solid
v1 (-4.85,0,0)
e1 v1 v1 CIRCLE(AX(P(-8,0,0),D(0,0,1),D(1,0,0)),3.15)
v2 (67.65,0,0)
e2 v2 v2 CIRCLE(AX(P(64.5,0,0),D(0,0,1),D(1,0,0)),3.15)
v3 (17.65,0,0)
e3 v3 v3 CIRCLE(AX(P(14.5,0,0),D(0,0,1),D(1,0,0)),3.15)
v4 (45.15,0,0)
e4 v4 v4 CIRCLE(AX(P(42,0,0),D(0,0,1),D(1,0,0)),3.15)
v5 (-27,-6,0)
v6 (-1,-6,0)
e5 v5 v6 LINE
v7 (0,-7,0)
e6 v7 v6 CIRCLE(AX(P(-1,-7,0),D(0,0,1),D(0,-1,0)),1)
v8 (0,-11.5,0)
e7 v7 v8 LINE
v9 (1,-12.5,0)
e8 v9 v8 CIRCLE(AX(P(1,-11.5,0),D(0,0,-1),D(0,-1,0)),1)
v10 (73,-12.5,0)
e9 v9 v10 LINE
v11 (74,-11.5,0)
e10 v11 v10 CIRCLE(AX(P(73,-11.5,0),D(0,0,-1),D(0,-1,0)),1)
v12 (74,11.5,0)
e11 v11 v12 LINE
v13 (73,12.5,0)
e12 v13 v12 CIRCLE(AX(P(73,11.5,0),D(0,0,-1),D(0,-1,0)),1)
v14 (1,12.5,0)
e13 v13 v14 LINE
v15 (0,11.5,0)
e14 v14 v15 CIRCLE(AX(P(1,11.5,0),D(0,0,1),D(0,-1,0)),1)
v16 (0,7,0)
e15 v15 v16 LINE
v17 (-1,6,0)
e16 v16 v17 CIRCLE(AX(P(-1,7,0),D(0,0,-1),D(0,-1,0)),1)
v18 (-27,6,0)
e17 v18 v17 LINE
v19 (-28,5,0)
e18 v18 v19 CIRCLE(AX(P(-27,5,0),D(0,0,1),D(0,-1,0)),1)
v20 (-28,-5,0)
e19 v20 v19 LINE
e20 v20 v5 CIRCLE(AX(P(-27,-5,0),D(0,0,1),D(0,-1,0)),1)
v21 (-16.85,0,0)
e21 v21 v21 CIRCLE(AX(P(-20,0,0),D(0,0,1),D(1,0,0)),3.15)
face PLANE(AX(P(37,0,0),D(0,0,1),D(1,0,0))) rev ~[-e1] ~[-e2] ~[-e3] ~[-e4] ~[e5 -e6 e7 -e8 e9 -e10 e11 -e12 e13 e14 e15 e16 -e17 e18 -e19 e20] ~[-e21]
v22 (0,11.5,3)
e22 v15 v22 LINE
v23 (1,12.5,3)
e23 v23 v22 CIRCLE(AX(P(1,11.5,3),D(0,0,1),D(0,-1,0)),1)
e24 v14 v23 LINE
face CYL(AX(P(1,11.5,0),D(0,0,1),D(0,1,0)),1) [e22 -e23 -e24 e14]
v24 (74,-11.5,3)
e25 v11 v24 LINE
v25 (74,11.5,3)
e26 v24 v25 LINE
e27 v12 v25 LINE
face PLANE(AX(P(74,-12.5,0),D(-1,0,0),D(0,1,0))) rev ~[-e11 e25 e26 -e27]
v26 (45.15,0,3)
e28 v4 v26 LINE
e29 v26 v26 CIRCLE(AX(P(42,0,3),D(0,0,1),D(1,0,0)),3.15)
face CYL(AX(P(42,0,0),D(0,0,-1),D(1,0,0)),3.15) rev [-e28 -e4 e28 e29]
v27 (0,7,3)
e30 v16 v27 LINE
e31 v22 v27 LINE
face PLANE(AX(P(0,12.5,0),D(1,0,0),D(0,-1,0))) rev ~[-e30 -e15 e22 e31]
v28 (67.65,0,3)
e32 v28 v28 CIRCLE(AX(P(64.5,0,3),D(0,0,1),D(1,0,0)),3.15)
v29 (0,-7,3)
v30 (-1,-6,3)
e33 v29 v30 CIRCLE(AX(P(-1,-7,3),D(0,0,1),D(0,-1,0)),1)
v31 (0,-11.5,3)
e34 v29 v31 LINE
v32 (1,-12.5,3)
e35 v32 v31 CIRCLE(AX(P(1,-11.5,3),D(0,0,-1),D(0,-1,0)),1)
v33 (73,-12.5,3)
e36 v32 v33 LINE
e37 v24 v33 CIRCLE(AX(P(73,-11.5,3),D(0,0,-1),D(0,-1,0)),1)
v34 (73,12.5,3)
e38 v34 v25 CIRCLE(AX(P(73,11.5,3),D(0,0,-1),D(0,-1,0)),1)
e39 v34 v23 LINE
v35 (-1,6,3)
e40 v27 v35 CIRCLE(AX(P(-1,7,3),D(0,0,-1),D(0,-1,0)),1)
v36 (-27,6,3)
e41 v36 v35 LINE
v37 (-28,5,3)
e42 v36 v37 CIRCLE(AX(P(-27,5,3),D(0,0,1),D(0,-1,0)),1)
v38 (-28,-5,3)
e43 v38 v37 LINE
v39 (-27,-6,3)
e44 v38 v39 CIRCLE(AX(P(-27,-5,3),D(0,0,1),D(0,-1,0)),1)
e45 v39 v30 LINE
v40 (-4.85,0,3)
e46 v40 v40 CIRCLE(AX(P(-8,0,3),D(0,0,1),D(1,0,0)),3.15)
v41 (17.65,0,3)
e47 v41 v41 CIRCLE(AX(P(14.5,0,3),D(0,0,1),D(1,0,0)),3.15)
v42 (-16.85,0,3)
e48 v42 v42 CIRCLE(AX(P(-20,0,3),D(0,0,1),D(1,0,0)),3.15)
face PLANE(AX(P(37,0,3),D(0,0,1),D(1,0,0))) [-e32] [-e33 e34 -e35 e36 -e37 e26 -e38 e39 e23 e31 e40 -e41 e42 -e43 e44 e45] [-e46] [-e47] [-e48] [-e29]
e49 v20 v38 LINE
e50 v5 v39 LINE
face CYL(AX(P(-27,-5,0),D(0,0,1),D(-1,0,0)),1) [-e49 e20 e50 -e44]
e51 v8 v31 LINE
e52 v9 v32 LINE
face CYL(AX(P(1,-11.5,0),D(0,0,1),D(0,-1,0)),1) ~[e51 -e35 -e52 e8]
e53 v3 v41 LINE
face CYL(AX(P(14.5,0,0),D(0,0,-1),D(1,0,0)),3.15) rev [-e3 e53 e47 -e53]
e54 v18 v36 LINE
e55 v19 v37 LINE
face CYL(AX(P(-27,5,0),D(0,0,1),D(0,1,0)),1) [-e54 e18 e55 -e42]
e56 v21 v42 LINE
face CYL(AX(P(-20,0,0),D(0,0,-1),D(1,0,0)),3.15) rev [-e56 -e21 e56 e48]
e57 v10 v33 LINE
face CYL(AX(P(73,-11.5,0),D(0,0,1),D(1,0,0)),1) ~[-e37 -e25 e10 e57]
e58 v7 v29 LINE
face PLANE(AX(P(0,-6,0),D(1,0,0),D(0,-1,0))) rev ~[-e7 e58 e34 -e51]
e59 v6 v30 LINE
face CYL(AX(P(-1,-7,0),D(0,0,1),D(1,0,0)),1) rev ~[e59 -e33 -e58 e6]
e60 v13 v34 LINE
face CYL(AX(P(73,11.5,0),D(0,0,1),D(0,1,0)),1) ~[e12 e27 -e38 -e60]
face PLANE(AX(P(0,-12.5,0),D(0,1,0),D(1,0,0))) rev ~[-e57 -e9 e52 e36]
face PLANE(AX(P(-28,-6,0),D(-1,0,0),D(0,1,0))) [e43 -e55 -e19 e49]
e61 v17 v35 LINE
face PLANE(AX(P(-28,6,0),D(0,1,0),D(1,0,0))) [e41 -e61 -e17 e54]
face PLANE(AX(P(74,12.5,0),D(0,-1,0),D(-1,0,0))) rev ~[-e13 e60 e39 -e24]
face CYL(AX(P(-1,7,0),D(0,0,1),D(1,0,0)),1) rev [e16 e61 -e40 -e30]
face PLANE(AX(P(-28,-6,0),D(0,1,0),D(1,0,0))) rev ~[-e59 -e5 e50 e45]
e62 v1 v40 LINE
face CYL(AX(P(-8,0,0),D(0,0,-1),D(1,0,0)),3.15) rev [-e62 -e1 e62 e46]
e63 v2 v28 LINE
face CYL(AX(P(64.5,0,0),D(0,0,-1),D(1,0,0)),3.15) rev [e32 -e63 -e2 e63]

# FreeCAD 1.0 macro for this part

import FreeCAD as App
import Part
import Sketcher


def edges_at(feature, points):
    """Names of the edges that pass closest to the given points."""
    edges = feature.Shape.Edges
    near = lambda p: min(range(len(edges)), key=lambda i: edges[i].distToShape(Part.Vertex(*p))[0])
    return sorted({f"Edge{near(p) + 1}" for p in points})

doc = App.newDocument("Part")
params = doc.addObject("Spreadsheet::Sheet", "Params")
for row, (alias, value) in enumerate([
    ("sketch1_diameter", "6.3 mm"),
    ("sketch1_width", "74 mm"),
    ("sketch1_width2", "28 mm"),
    ("sketch1_height", "12 mm"),
    ("sketch1_height2", "25 mm"),
    ("pad1_length", "3 mm"),
    ("fillet_radius", "1 mm"),
], start=1):
    params.set(f"A{row}", alias)
    params.set(f"B{row}", "=" + value)
    params.setAlias(f"B{row}", alias)

body = doc.addObject("PartDesign::Body", "Body")

sketch1 = body.newObject("Sketcher::SketchObject", "Sketch")
sketch1.AttachmentSupport = (doc.getObject("XY_Plane"), [""])
sketch1.MapMode = "FlatFace"
sketch1.addGeometry(Part.LineSegment(App.Vector(74, 12.5, 0), App.Vector(0, 12.5, 0)), False)
sketch1.addGeometry(Part.LineSegment(App.Vector(0, 12.5, 0), App.Vector(0, 6, 0)), False)
sketch1.addGeometry(Part.LineSegment(App.Vector(0, 6, 0), App.Vector(-28, 6, 0)), False)
sketch1.addGeometry(Part.LineSegment(App.Vector(-28, 6, 0), App.Vector(-28, -6, 0)), False)
sketch1.addGeometry(Part.LineSegment(App.Vector(-28, -6, 0), App.Vector(0, -6, 0)), False)
sketch1.addGeometry(Part.LineSegment(App.Vector(0, -6, 0), App.Vector(0, -12.5, 0)), False)
sketch1.addGeometry(Part.LineSegment(App.Vector(0, -12.5, 0), App.Vector(74, -12.5, 0)), False)
sketch1.addGeometry(Part.LineSegment(App.Vector(74, -12.5, 0), App.Vector(74, 12.5, 0)), False)
sketch1.addGeometry(Part.Circle(App.Vector(-20, 0, 0), App.Vector(0, 0, 1), 3.1), False)
sketch1.addGeometry(Part.Circle(App.Vector(-8, 0, 0), App.Vector(0, 0, 1), 3.1), False)
sketch1.addGeometry(Part.Circle(App.Vector(14.5, 0, 0), App.Vector(0, 0, 1), 3.1), False)
sketch1.addGeometry(Part.Circle(App.Vector(42, 0, 0), App.Vector(0, 0, 1), 3.1), False)
sketch1.addGeometry(Part.Circle(App.Vector(64.5, 0, 0), App.Vector(0, 0, 1), 3.1), False)
sketch1.addConstraint(Sketcher.Constraint("Coincident", 0, 2, 1, 1))
sketch1.addConstraint(Sketcher.Constraint("Coincident", 1, 2, 2, 1))
sketch1.addConstraint(Sketcher.Constraint("Coincident", 2, 2, 3, 1))
sketch1.addConstraint(Sketcher.Constraint("Coincident", 3, 2, 4, 1))
sketch1.addConstraint(Sketcher.Constraint("Coincident", 4, 2, 5, 1))
sketch1.addConstraint(Sketcher.Constraint("Coincident", 5, 2, 6, 1))
sketch1.addConstraint(Sketcher.Constraint("Coincident", 6, 2, 7, 1))
sketch1.addConstraint(Sketcher.Constraint("Coincident", 7, 2, 0, 1))
sketch1.addConstraint(Sketcher.Constraint("Horizontal", 0))
sketch1.addConstraint(Sketcher.Constraint("Vertical", 1))
sketch1.addConstraint(Sketcher.Constraint("Horizontal", 2))
sketch1.addConstraint(Sketcher.Constraint("Vertical", 3))
sketch1.addConstraint(Sketcher.Constraint("Horizontal", 4))
sketch1.addConstraint(Sketcher.Constraint("Vertical", 5))
sketch1.addConstraint(Sketcher.Constraint("Horizontal", 6))
sketch1.addConstraint(Sketcher.Constraint("Vertical", 7))
sketch1.addConstraint(Sketcher.Constraint("Equal", 8, 9))
sketch1.addConstraint(Sketcher.Constraint("Equal", 9, 10))
sketch1.addConstraint(Sketcher.Constraint("Equal", 10, 11))
sketch1.addConstraint(Sketcher.Constraint("Equal", 11, 12))
sketch1.addConstraint(Sketcher.Constraint("Symmetric", 1, 2, 4, 2, -1, 1))
sketch1.addConstraint(Sketcher.Constraint("Symmetric", 0, 2, 5, 2, -1))
sketch1.addConstraint(Sketcher.Constraint("PointOnObject", 8, 3, -1))
sketch1.addConstraint(Sketcher.Constraint("PointOnObject", 9, 3, -1))
sketch1.addConstraint(Sketcher.Constraint("PointOnObject", 10, 3, -1))
sketch1.addConstraint(Sketcher.Constraint("PointOnObject", 11, 3, -1))
sketch1.addConstraint(Sketcher.Constraint("PointOnObject", 12, 3, -1))
sketch1.addConstraint(Sketcher.Constraint("Diameter", 8, 6.3))
sketch1.addConstraint(Sketcher.Constraint("DistanceX", 0, 2, 0, 1, 74.0))
sketch1.addConstraint(Sketcher.Constraint("DistanceX", 2, 2, 2, 1, 28.0))
sketch1.addConstraint(Sketcher.Constraint("DistanceY", 3, 2, 3, 1, 12.0))
sketch1.addConstraint(Sketcher.Constraint("DistanceY", 7, 1, 7, 2, 25.0))
sketch1.addConstraint(Sketcher.Constraint("DistanceX", 8, 3, -1, 1, 20.0))
sketch1.addConstraint(Sketcher.Constraint("DistanceX", 9, 3, -1, 1, 8.0))
sketch1.addConstraint(Sketcher.Constraint("DistanceX", -1, 1, 11, 3, 42.0))
sketch1.addConstraint(Sketcher.Constraint("DistanceX", 10, 3, 12, 3, 50.0))
sketch1.addConstraint(Sketcher.Constraint("DistanceX", -1, 1, 10, 3, 14.5))
sketch1.setExpression("Constraints[27]", "Params.sketch1_diameter")
sketch1.setExpression("Constraints[28]", "Params.sketch1_width")
sketch1.setExpression("Constraints[29]", "Params.sketch1_width2")
sketch1.setExpression("Constraints[30]", "Params.sketch1_height")
sketch1.setExpression("Constraints[31]", "Params.sketch1_height2")
pad1 = body.newObject("PartDesign::Pad", "Pad")
pad1.Profile = sketch1
pad1.setExpression("Length", "Params.pad1_length")
doc.recompute()

fillet = body.newObject("PartDesign::Fillet", "Fillet")
fillet.Base = (pad1, edges_at(pad1, [
    (-28, 6, 1.5),
    (-28, -6, 1.5),
    (0, 6, 1.5),
    (0, 12.5, 1.5),
    (0, -6, 1.5),
    (0, -12.5, 1.5),
    (74, -12.5, 1.5),
    (74, 12.5, 1.5),
]))
fillet.setExpression("Radius", "Params.fillet_radius")

doc.recompute()
